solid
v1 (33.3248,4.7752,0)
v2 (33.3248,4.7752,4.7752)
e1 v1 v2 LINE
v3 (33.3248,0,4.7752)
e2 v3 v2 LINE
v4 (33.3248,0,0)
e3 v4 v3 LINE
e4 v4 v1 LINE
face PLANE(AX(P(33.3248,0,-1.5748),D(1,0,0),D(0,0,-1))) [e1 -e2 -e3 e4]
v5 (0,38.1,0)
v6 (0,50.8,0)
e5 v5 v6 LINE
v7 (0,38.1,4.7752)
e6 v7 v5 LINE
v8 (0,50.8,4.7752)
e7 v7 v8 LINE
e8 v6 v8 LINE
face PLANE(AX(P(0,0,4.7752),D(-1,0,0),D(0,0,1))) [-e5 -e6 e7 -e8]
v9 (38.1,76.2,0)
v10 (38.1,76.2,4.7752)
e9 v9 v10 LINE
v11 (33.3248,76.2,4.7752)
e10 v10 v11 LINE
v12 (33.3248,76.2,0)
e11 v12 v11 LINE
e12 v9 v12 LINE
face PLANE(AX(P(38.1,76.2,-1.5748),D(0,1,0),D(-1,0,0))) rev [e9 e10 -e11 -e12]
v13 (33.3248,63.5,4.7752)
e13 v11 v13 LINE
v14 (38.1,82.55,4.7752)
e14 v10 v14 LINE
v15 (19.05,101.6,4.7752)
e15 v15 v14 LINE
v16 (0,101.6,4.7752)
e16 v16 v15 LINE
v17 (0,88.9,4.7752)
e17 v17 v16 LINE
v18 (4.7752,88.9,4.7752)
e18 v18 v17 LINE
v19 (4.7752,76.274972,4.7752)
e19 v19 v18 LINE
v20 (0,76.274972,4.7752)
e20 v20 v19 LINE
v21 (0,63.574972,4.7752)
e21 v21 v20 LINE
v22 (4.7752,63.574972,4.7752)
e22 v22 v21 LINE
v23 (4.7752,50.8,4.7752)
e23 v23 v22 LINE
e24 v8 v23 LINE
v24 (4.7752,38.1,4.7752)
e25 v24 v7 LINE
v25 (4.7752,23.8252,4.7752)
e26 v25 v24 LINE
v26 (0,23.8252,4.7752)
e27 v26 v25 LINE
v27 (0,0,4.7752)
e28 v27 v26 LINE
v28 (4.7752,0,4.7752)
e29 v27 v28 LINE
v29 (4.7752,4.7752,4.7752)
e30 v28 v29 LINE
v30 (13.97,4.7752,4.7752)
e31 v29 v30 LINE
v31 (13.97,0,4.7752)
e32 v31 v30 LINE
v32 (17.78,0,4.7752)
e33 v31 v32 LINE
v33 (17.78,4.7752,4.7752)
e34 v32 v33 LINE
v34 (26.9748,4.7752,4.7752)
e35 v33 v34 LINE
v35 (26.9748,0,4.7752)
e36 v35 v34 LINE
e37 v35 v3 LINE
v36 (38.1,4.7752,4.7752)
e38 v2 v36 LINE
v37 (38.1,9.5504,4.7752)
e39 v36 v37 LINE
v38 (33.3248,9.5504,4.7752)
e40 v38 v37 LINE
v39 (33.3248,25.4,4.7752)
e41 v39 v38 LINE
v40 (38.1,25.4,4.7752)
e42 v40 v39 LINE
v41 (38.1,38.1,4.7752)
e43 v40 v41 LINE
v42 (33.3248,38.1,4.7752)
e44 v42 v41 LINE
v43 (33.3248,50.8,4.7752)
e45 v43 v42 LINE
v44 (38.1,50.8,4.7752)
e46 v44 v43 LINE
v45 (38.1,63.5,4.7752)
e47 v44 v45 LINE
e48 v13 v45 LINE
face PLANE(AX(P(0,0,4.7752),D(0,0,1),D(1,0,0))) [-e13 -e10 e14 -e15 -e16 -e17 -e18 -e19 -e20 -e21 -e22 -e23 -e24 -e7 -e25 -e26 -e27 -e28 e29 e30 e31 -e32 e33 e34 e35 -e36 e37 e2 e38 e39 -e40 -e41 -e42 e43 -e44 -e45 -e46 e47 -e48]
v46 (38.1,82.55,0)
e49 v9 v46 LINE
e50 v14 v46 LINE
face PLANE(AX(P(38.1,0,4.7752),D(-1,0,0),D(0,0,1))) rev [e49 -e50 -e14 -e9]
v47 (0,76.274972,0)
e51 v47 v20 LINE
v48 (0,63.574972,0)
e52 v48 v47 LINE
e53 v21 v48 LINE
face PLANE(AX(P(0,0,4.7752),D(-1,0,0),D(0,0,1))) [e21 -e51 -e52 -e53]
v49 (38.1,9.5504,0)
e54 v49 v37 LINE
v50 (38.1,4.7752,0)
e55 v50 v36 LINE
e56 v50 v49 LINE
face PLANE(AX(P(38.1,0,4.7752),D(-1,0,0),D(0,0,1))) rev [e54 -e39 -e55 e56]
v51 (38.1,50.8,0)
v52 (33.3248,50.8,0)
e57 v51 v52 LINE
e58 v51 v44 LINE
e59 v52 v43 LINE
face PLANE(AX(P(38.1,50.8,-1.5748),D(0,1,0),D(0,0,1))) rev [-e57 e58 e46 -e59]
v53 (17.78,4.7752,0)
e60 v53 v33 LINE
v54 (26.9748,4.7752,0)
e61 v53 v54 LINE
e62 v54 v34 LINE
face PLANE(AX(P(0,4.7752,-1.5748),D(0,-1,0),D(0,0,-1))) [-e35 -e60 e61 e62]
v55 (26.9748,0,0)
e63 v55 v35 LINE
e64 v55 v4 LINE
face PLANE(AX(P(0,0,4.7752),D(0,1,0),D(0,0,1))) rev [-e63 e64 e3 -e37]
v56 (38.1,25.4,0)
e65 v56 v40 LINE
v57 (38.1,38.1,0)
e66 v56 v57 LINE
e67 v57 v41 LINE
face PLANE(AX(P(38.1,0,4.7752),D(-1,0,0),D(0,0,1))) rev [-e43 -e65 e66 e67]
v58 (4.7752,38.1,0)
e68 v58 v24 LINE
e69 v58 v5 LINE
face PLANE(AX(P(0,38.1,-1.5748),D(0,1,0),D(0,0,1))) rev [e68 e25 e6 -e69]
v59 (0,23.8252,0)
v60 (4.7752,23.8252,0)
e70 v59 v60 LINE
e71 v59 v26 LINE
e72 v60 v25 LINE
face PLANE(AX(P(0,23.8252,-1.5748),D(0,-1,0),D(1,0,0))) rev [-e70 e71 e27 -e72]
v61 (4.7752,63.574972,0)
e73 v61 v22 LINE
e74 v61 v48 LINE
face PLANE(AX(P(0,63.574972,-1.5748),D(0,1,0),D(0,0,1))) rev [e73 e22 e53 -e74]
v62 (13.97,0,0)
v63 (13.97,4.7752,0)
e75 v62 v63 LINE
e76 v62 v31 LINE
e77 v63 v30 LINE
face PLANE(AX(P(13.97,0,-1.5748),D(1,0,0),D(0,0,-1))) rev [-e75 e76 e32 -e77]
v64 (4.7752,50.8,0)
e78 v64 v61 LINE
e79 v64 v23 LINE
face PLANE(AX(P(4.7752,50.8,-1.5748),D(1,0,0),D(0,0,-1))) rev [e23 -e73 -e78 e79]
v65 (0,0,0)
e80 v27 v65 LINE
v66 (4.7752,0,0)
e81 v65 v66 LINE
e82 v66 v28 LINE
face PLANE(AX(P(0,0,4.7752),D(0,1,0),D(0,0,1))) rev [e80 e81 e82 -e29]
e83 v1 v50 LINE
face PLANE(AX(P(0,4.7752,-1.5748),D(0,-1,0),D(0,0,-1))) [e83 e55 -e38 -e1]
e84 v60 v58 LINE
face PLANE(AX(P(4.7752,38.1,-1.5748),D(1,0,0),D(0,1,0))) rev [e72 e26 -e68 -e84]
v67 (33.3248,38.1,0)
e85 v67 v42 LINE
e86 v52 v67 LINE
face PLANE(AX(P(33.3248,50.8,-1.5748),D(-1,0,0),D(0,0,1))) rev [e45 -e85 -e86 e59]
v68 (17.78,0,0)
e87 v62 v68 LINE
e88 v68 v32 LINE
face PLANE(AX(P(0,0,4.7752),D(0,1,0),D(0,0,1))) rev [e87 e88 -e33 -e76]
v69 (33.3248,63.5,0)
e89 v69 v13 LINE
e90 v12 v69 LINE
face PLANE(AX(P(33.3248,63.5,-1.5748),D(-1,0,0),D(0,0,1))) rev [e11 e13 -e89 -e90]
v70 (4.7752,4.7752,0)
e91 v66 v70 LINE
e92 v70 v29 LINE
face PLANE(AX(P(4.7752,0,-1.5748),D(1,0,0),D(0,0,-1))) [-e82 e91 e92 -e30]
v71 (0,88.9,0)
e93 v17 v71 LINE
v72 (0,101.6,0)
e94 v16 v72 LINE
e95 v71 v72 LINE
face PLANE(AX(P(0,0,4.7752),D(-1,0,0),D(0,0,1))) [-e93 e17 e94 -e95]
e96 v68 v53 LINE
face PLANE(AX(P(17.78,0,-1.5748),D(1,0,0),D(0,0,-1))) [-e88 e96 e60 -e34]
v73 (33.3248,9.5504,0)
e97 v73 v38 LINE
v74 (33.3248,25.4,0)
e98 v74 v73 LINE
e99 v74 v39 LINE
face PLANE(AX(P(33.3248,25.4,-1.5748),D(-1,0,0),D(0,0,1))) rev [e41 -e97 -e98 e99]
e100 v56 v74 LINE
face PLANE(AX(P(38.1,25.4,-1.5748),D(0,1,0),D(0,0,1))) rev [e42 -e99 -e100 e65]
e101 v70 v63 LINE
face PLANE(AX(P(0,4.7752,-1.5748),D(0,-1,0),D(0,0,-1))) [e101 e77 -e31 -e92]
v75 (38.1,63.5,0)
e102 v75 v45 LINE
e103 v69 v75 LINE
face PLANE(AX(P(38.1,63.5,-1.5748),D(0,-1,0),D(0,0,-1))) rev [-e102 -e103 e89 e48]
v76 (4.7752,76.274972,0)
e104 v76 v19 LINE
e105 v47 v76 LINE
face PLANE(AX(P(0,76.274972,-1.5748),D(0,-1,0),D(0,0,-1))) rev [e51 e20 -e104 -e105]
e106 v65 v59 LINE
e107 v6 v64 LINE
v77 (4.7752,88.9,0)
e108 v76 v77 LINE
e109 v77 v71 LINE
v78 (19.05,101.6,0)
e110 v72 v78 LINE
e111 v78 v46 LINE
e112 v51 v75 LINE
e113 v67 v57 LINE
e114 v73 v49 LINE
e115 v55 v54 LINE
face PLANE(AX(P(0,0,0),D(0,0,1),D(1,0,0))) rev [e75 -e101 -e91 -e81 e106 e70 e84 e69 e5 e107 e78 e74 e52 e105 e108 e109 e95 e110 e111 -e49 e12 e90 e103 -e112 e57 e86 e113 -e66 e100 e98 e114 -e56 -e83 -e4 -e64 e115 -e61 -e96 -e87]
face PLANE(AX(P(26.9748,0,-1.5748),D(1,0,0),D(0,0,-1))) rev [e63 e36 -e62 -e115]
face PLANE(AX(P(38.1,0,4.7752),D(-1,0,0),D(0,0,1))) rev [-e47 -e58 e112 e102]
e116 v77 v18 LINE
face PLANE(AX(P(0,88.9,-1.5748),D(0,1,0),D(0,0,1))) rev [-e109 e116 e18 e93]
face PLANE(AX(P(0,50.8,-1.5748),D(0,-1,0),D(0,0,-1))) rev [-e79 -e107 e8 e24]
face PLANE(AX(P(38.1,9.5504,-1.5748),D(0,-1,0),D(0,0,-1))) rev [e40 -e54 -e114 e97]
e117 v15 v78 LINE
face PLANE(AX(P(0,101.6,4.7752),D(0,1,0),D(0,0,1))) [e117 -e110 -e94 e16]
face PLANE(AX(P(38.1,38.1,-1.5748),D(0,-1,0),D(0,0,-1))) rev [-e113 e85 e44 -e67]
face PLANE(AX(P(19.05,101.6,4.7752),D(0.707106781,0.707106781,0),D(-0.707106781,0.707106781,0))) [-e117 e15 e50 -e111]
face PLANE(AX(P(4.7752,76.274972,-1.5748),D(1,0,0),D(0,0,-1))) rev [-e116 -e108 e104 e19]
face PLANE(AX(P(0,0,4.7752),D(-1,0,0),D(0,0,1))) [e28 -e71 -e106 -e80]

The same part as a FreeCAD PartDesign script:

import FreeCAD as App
import Part
import Sketcher

V = App.Vector
Q = App.Units.Quantity

doc = App.newDocument("Part")
body = doc.addObject("PartDesign::Body", "Body")

sketch1 = body.newObject("Sketcher::SketchObject", "Sketch")
sketch1.AttachmentSupport = (doc.getObject("XY_Plane"), [""])
sketch1.MapMode = "FlatFace"
sketch1.addGeometry(Part.LineSegment(V(0, 101.6, 0), V(0, 0, 0)), False)
sketch1.addGeometry(Part.LineSegment(V(0, 0, 0), V(38.1, 0, 0)), False)
sketch1.addGeometry(Part.LineSegment(V(38.1, 0, 0), V(38.1, 82.55, 0)), False)
sketch1.addGeometry(Part.LineSegment(V(38.1, 82.55, 0), V(19.05, 101.6, 0)), False)
sketch1.addGeometry(Part.LineSegment(V(19.05, 101.6, 0), V(0, 101.6, 0)), False)
sketch1.addConstraint(Sketcher.Constraint("Coincident", 0, 2, 1, 1))
sketch1.addConstraint(Sketcher.Constraint("Coincident", 1, 2, 2, 1))
sketch1.addConstraint(Sketcher.Constraint("Coincident", 2, 2, 3, 1))
sketch1.addConstraint(Sketcher.Constraint("Coincident", 3, 2, 4, 1))
sketch1.addConstraint(Sketcher.Constraint("Coincident", 4, 2, 0, 1))
sketch1.addConstraint(Sketcher.Constraint("Vertical", 0))
sketch1.addConstraint(Sketcher.Constraint("Horizontal", 1))
sketch1.addConstraint(Sketcher.Constraint("Vertical", 2))
sketch1.addConstraint(Sketcher.Constraint("Horizontal", 4))
sketch1.addConstraint(Sketcher.Constraint("Coincident", 0, 2, -1, 1))
sketch1.addConstraint(Sketcher.Constraint("DistanceY", 0, 2, 0, 1, Q("4 in")))
sketch1.addConstraint(Sketcher.Constraint("DistanceX", 1, 1, 1, 2, Q("1.5 in")))
sketch1.addConstraint(Sketcher.Constraint("Angle", 3, Q("135 deg")))
sketch1.addConstraint(Sketcher.Constraint("DistanceX", 4, 2, 4, 1, Q("0.75 in")))
pad1 = body.newObject("PartDesign::Pad", "Pad")
pad1.Profile = sketch1
pad1.Length = Q("0.188 in")

sketch2 = body.newObject("Sketcher::SketchObject", "Sketch001")
sketch2.AttachmentSupport = (doc.getObject("XY_Plane"), [""])
sketch2.MapMode = "FlatFace"
sketch2.AttachmentOffset = App.Placement(V(0, 0, 0.188 * 25.4), App.Rotation())
sketch2.addGeometry(Part.LineSegment(V(4.7752, 4.7752, 0), V(4.7752, 0, 0)), False)
sketch2.addGeometry(Part.LineSegment(V(4.7752, 0, 0), V(13.97, 0, 0)), False)
sketch2.addGeometry(Part.LineSegment(V(13.97, 0, 0), V(13.97, 4.7752, 0)), False)
sketch2.addGeometry(Part.LineSegment(V(13.97, 4.7752, 0), V(4.7752, 4.7752, 0)), False)
sketch2.addGeometry(Part.LineSegment(V(17.78, 4.7752, 0), V(17.78, 0, 0)), False)
sketch2.addGeometry(Part.LineSegment(V(17.78, 0, 0), V(26.9748, 0, 0)), False)
sketch2.addGeometry(Part.LineSegment(V(26.9748, 0, 0), V(26.9748, 4.7752, 0)), False)
sketch2.addGeometry(Part.LineSegment(V(26.9748, 4.7752, 0), V(17.78, 4.7752, 0)), False)
sketch2.addGeometry(Part.LineSegment(V(33.3248, 4.7752, 0), V(33.3248, 0, 0)), False)
sketch2.addGeometry(Part.LineSegment(V(33.3248, 0, 0), V(38.1, 0, 0)), False)
sketch2.addGeometry(Part.LineSegment(V(38.1, 0, 0), V(38.1, 4.7752, 0)), False)
sketch2.addGeometry(Part.LineSegment(V(38.1, 4.7752, 0), V(33.3248, 4.7752, 0)), False)
sketch2.addConstraint(Sketcher.Constraint("Coincident", 0, 2, 1, 1))
sketch2.addConstraint(Sketcher.Constraint("Coincident", 1, 2, 2, 1))
sketch2.addConstraint(Sketcher.Constraint("Coincident", 2, 2, 3, 1))
sketch2.addConstraint(Sketcher.Constraint("Coincident", 3, 2, 0, 1))
sketch2.addConstraint(Sketcher.Constraint("Coincident", 4, 2, 5, 1))
sketch2.addConstraint(Sketcher.Constraint("Coincident", 5, 2, 6, 1))
sketch2.addConstraint(Sketcher.Constraint("Coincident", 6, 2, 7, 1))
sketch2.addConstraint(Sketcher.Constraint("Coincident", 7, 2, 4, 1))
sketch2.addConstraint(Sketcher.Constraint("Coincident", 8, 2, 9, 1))
sketch2.addConstraint(Sketcher.Constraint("Coincident", 9, 2, 10, 1))
sketch2.addConstraint(Sketcher.Constraint("Coincident", 10, 2, 11, 1))
sketch2.addConstraint(Sketcher.Constraint("Coincident", 11, 2, 8, 1))
sketch2.addConstraint(Sketcher.Constraint("Vertical", 0))
sketch2.addConstraint(Sketcher.Constraint("Horizontal", 1))
sketch2.addConstraint(Sketcher.Constraint("Vertical", 2))
sketch2.addConstraint(Sketcher.Constraint("Horizontal", 3))
sketch2.addConstraint(Sketcher.Constraint("Vertical", 4))
sketch2.addConstraint(Sketcher.Constraint("Horizontal", 5))
sketch2.addConstraint(Sketcher.Constraint("Vertical", 6))
sketch2.addConstraint(Sketcher.Constraint("Horizontal", 7))
sketch2.addConstraint(Sketcher.Constraint("Vertical", 8))
sketch2.addConstraint(Sketcher.Constraint("Horizontal", 9))
sketch2.addConstraint(Sketcher.Constraint("Vertical", 10))
sketch2.addConstraint(Sketcher.Constraint("Horizontal", 11))
sketch2.addConstraint(Sketcher.Constraint("PointOnObject", 0, 2, -1))
sketch2.addConstraint(Sketcher.Constraint("PointOnObject", 4, 2, -1))
sketch2.addConstraint(Sketcher.Constraint("PointOnObject", 8, 2, -1))
sketch2.addConstraint(Sketcher.Constraint("Horizontal", 3, 2, 6, 2))
sketch2.addConstraint(Sketcher.Constraint("Horizontal", 7, 2, 10, 2))
sketch2.addConstraint(Sketcher.Constraint("Equal", 3, 5))
sketch2.addConstraint(Sketcher.Constraint("Equal", 11, 0))
sketch2.addConstraint(Sketcher.Constraint("DistanceX", -1, 1, 4, 2, Q("0.7 in")))
sketch2.addConstraint(Sketcher.Constraint("DistanceX", -1, 1, 9, 2, Q("1.5 in")))
sketch2.addConstraint(Sketcher.Constraint("DistanceX", 1, 1, 1, 2, Q("0.362 in")))
sketch2.addConstraint(Sketcher.Constraint("DistanceX", 9, 1, 9, 2, Q("0.188 in")))
sketch2.addConstraint(Sketcher.Constraint("DistanceX", -1, 1, 1, 2, Q("0.55 in")))
pocket1 = body.newObject("PartDesign::Pocket", "Pocket")
pocket1.Profile = sketch2
pocket1.Length = Q("0.25 in")

sketch3 = body.newObject("Sketcher::SketchObject", "Sketch002")
sketch3.AttachmentSupport = (doc.getObject("XY_Plane"), [""])
sketch3.MapMode = "FlatFace"
sketch3.AttachmentOffset = App.Placement(V(0, 0, 0.188 * 25.4), App.Rotation())
sketch3.addGeometry(Part.LineSegment(V(0, 63.574972, 0), V(0, 50.8, 0)), False)
sketch3.addGeometry(Part.LineSegment(V(0, 50.8, 0), V(4.7752, 50.8, 0)), False)
sketch3.addGeometry(Part.LineSegment(V(4.7752, 50.8, 0), V(4.7752, 63.574972, 0)), False)
sketch3.addGeometry(Part.LineSegment(V(4.7752, 63.574972, 0), V(0, 63.574972, 0)), False)
sketch3.addGeometry(Part.LineSegment(V(33.3248, 50.8, 0), V(33.3248, 38.1, 0)), False)
sketch3.addGeometry(Part.LineSegment(V(33.3248, 38.1, 0), V(38.1, 38.1, 0)), False)
sketch3.addGeometry(Part.LineSegment(V(38.1, 38.1, 0), V(38.1, 50.8, 0)), False)
sketch3.addGeometry(Part.LineSegment(V(38.1, 50.8, 0), V(33.3248, 50.8, 0)), False)
sketch3.addGeometry(Part.LineSegment(V(0, 38.1, 0), V(0, 23.8252, 0)), False)
sketch3.addGeometry(Part.LineSegment(V(0, 23.8252, 0), V(4.7752, 23.8252, 0)), False)
sketch3.addGeometry(Part.LineSegment(V(4.7752, 23.8252, 0), V(4.7752, 38.1, 0)), False)
sketch3.addGeometry(Part.LineSegment(V(4.7752, 38.1, 0), V(0, 38.1, 0)), False)
sketch3.addGeometry(Part.LineSegment(V(33.3248, 25.4, 0), V(33.3248, 9.5504, 0)), False)
sketch3.addGeometry(Part.LineSegment(V(33.3248, 9.5504, 0), V(38.1, 9.5504, 0)), False)
sketch3.addGeometry(Part.LineSegment(V(38.1, 9.5504, 0), V(38.1, 25.4, 0)), False)
sketch3.addGeometry(Part.LineSegment(V(38.1, 25.4, 0), V(33.3248, 25.4, 0)), False)
sketch3.addGeometry(Part.LineSegment(V(33.3248, 76.2, 0), V(33.3248, 63.5, 0)), False)
sketch3.addGeometry(Part.LineSegment(V(33.3248, 63.5, 0), V(38.1, 63.5, 0)), False)
sketch3.addGeometry(Part.LineSegment(V(38.1, 63.5, 0), V(38.1, 76.2, 0)), False)
sketch3.addGeometry(Part.LineSegment(V(38.1, 76.2, 0), V(33.3248, 76.2, 0)), False)
sketch3.addGeometry(Part.LineSegment(V(0, 88.9, 0), V(0, 76.274972, 0)), False)
sketch3.addGeometry(Part.LineSegment(V(0, 76.274972, 0), V(4.7752, 76.274972, 0)), False)
sketch3.addGeometry(Part.LineSegment(V(4.7752, 76.274972, 0), V(4.7752, 88.9, 0)), False)
sketch3.addGeometry(Part.LineSegment(V(4.7752, 88.9, 0), V(0, 88.9, 0)), False)
sketch3.addConstraint(Sketcher.Constraint("Coincident", 0, 2, 1, 1))
sketch3.addConstraint(Sketcher.Constraint("Coincident", 1, 2, 2, 1))
sketch3.addConstraint(Sketcher.Constraint("Coincident", 2, 2, 3, 1))
sketch3.addConstraint(Sketcher.Constraint("Coincident", 3, 2, 0, 1))
sketch3.addConstraint(Sketcher.Constraint("Coincident", 4, 2, 5, 1))
sketch3.addConstraint(Sketcher.Constraint("Coincident", 5, 2, 6, 1))
sketch3.addConstraint(Sketcher.Constraint("Coincident", 6, 2, 7, 1))
sketch3.addConstraint(Sketcher.Constraint("Coincident", 7, 2, 4, 1))
sketch3.addConstraint(Sketcher.Constraint("Coincident", 8, 2, 9, 1))
sketch3.addConstraint(Sketcher.Constraint("Coincident", 9, 2, 10, 1))
sketch3.addConstraint(Sketcher.Constraint("Coincident", 10, 2, 11, 1))
sketch3.addConstraint(Sketcher.Constraint("Coincident", 11, 2, 8, 1))
sketch3.addConstraint(Sketcher.Constraint("Coincident", 12, 2, 13, 1))
sketch3.addConstraint(Sketcher.Constraint("Coincident", 13, 2, 14, 1))
sketch3.addConstraint(Sketcher.Constraint("Coincident", 14, 2, 15, 1))
sketch3.addConstraint(Sketcher.Constraint("Coincident", 15, 2, 12, 1))
sketch3.addConstraint(Sketcher.Constraint("Coincident", 16, 2, 17, 1))
sketch3.addConstraint(Sketcher.Constraint("Coincident", 17, 2, 18, 1))
sketch3.addConstraint(Sketcher.Constraint("Coincident", 18, 2, 19, 1))
sketch3.addConstraint(Sketcher.Constraint("Coincident", 19, 2, 16, 1))
sketch3.addConstraint(Sketcher.Constraint("Coincident", 20, 2, 21, 1))
sketch3.addConstraint(Sketcher.Constraint("Coincident", 21, 2, 22, 1))
sketch3.addConstraint(Sketcher.Constraint("Coincident", 22, 2, 23, 1))
sketch3.addConstraint(Sketcher.Constraint("Coincident", 23, 2, 20, 1))
sketch3.addConstraint(Sketcher.Constraint("Vertical", 0))
sketch3.addConstraint(Sketcher.Constraint("Horizontal", 1))
sketch3.addConstraint(Sketcher.Constraint("Vertical", 2))
sketch3.addConstraint(Sketcher.Constraint("Horizontal", 3))
sketch3.addConstraint(Sketcher.Constraint("Vertical", 4))
sketch3.addConstraint(Sketcher.Constraint("Horizontal", 5))
sketch3.addConstraint(Sketcher.Constraint("Vertical", 6))
sketch3.addConstraint(Sketcher.Constraint("Horizontal", 7))
sketch3.addConstraint(Sketcher.Constraint("Vertical", 8))
sketch3.addConstraint(Sketcher.Constraint("Horizontal", 9))
sketch3.addConstraint(Sketcher.Constraint("Vertical", 10))
sketch3.addConstraint(Sketcher.Constraint("Horizontal", 11))
sketch3.addConstraint(Sketcher.Constraint("Vertical", 12))
sketch3.addConstraint(Sketcher.Constraint("Horizontal", 13))
sketch3.addConstraint(Sketcher.Constraint("Vertical", 14))
sketch3.addConstraint(Sketcher.Constraint("Horizontal", 15))
sketch3.addConstraint(Sketcher.Constraint("Vertical", 16))
sketch3.addConstraint(Sketcher.Constraint("Horizontal", 17))
sketch3.addConstraint(Sketcher.Constraint("Vertical", 18))
sketch3.addConstraint(Sketcher.Constraint("Horizontal", 19))
sketch3.addConstraint(Sketcher.Constraint("Vertical", 20))
sketch3.addConstraint(Sketcher.Constraint("Horizontal", 21))
sketch3.addConstraint(Sketcher.Constraint("Vertical", 22))
sketch3.addConstraint(Sketcher.Constraint("Horizontal", 23))
sketch3.addConstraint(Sketcher.Constraint("PointOnObject", 0, 2, -2))
sketch3.addConstraint(Sketcher.Constraint("PointOnObject", 8, 2, -2))
sketch3.addConstraint(Sketcher.Constraint("PointOnObject", 20, 2, -2))
sketch3.addConstraint(Sketcher.Constraint("Horizontal", 1, 2, 6, 2))
sketch3.addConstraint(Sketcher.Constraint("Horizontal", 5, 2, 10, 2))
sketch3.addConstraint(Sketcher.Constraint("Vertical", 2, 2, 9, 2))
sketch3.addConstraint(Sketcher.Constraint("Vertical", 7, 2, 12, 2))
sketch3.addConstraint(Sketcher.Constraint("Vertical", 6, 2, 13, 2))
sketch3.addConstraint(Sketcher.Constraint("Vertical", 15, 2, 16, 2))
sketch3.addConstraint(Sketcher.Constraint("Vertical", 14, 2, 17, 2))
sketch3.addConstraint(Sketcher.Constraint("Vertical", 10, 2, 21, 2))
sketch3.addConstraint(Sketcher.Constraint("Equal", 3, 5))
sketch3.addConstraint(Sketcher.Constraint("Equal", 6, 16))
sketch3.addConstraint(Sketcher.Constraint("DistanceY", 4, 2, 4, 1, Q("0.5 in")))
sketch3.addConstraint(Sketcher.Constraint("DistanceY", -1, 1, 0, 2, Q("2 in")))
sketch3.addConstraint(Sketcher.Constraint("DistanceY", -1, 1, 14, 2, Q("1 in")))
sketch3.addConstraint(Sketcher.Constraint("DistanceY", -1, 1, 18, 2, Q("3 in")))
sketch3.addConstraint(Sketcher.Constraint("DistanceX", -1, 1, 5, 2, Q("1.5 in")))
sketch3.addConstraint(Sketcher.Constraint("DistanceY", -1, 1, 22, 2, Q("3.5 in")))
sketch3.addConstraint(Sketcher.Constraint("DistanceY", 3, 2, 20, 2, Q("0.5 in")))
sketch3.addConstraint(Sketcher.Constraint("DistanceX", 1, 1, 1, 2, Q("0.188 in")))
sketch3.addConstraint(Sketcher.Constraint("DistanceY", 8, 2, 8, 1, Q("0.562 in")))
sketch3.addConstraint(Sketcher.Constraint("DistanceY", 12, 2, 12, 1, Q("0.624 in")))
sketch3.addConstraint(Sketcher.Constraint("DistanceY", 0, 2, 0, 1, Q("12.774972 mm")))
pocket2 = body.newObject("PartDesign::Pocket", "Pocket001")
pocket2.Profile = sketch3
pocket2.Length = Q("0.25 in")

doc.recompute()
